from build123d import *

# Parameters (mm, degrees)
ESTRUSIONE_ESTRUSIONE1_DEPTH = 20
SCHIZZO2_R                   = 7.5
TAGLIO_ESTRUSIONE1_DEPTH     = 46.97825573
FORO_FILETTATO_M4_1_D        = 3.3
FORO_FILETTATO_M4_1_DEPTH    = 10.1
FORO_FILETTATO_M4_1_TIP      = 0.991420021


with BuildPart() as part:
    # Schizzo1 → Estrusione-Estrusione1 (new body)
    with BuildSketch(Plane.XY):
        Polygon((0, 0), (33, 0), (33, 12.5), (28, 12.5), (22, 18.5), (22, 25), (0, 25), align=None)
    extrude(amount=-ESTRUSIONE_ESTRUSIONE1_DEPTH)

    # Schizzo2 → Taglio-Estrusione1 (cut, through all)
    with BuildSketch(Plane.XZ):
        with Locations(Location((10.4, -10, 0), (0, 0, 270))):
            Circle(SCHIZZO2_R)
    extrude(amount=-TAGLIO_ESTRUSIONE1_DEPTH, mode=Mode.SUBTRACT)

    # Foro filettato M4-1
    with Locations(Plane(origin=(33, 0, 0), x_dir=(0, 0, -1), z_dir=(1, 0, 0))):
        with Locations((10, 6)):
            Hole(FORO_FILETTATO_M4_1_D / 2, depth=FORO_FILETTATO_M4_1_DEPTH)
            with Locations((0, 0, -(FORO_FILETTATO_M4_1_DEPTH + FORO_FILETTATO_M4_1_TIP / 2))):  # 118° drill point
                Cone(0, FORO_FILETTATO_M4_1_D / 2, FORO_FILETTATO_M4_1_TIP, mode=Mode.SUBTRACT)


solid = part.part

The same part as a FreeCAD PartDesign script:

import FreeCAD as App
import Part
import Sketcher

V = App.Vector
Q = App.Units.Quantity


def add_polygon(sketch, points):
    """Adds a closed chain of lines whose ends are joined by coincident constraints."""
    first, n = sketch.GeometryCount, len(points)
    for a, b in zip(points, points[1:] + points[:1]):
        sketch.addGeometry(Part.LineSegment(App.Vector(*a, 0), App.Vector(*b, 0)), False)
    for i in range(n):
        sketch.addConstraint(Sketcher.Constraint("Coincident", first + i, 2, first + (i + 1) % n, 1))

doc = App.newDocument("Part")
params = doc.addObject("Spreadsheet::Sheet", "Params")
for row, (alias, value) in enumerate([
    ("sketch1_width", "33 mm"),
    ("sketch1_width2", "5 mm"),
    ("sketch1_width3", "22 mm"),
    ("sketch1_height", "25 mm"),
    ("sketch1_height2", "12.5 mm"),
    ("pad1_length", "20 mm"),
    ("sketch2_diameter", "15 mm"),
    ("sketch3_diameter", "3.3 mm"),
    ("hole_diameter", "3.3 mm"),
    ("hole_depth", "10.1 mm"),
], start=1):
    params.set(f"A{row}", alias)
    params.set(f"B{row}", "=" + value)
    params.setAlias(f"B{row}", alias)

body = doc.addObject("PartDesign::Body", "Body")

# Sketch on XY plane
sketch1 = body.newObject("Sketcher::SketchObject", "Sketch")
sketch1.AttachmentSupport = (doc.getObject("XY_Plane"), [""])
sketch1.MapMode = "FlatFace"
add_polygon(sketch1, [(0, 0), (33, 0), (33, 12), (28, 12), (22, 18), (22, 25), (0, 25)])  # lines 0-6
sketch1.addConstraint([
    Sketcher.Constraint("Horizontal", 0),
    Sketcher.Constraint("Vertical", 1),
    Sketcher.Constraint("Horizontal", 2),
    Sketcher.Constraint("Vertical", 4),
    Sketcher.Constraint("Horizontal", 5),
    Sketcher.Constraint("Vertical", 6),
    Sketcher.Constraint("Coincident", 6, 2, -1, 1),
    Sketcher.Constraint("DistanceX", 0, 1, 0, 2, 33.0),
    Sketcher.Constraint("DistanceX", 2, 2, 2, 1, 5.0),
    Sketcher.Constraint("DistanceX", 5, 2, 5, 1, 22.0),
    Sketcher.Constraint("DistanceY", 6, 2, 6, 1, 25.0),
    Sketcher.Constraint("Angle", 3, Q("135 deg")),
    Sketcher.Constraint("DistanceY", 1, 1, 1, 2, 12.5),
])
sketch1.setExpression("Constraints[14]", "Params.sketch1_width")
sketch1.setExpression("Constraints[15]", "Params.sketch1_width2")
sketch1.setExpression("Constraints[16]", "Params.sketch1_width3")
sketch1.setExpression("Constraints[17]", "Params.sketch1_height")
sketch1.setExpression("Constraints[19]", "Params.sketch1_height2")
pad1 = body.newObject("PartDesign::Pad", "Pad")
pad1.Profile = sketch1
pad1.setExpression("Length", "Params.pad1_length")
pad1.Reversed = True

# Sketch on XZ plane
sketch2 = body.newObject("Sketcher::SketchObject", "Sketch001")
sketch2.AttachmentSupport = (doc.getObject("XZ_Plane"), [""])
sketch2.MapMode = "FlatFace"
sketch2.addGeometry(Part.Circle(V(10, -10, 0), V(0, 0, 1), 8), False)
sketch2.addConstraint([
    Sketcher.Constraint("Diameter", 0, 15.0),
    Sketcher.Constraint("DistanceY", 0, 3, -1, 1, 10.0),
    Sketcher.Constraint("DistanceX", -1, 1, 0, 3, 10.4),
])
sketch2.setExpression("Constraints[0]", "Params.sketch2_diameter")
pocket1 = body.newObject("PartDesign::Pocket", "Pocket")
pocket1.Profile = sketch2
pocket1.Type = "ThroughAll"

# Sketch on YZ plane
sketch3 = body.newObject("Sketcher::SketchObject", "Sketch002")
sketch3.AttachmentSupport = (doc.getObject("YZ_Plane"), [""])
sketch3.MapMode = "FlatFace"
sketch3.AttachmentOffset = App.Placement(V(0, 0, 33), App.Rotation())
sketch3.addGeometry(Part.Circle(V(6, -10, 0), V(0, 0, 1), 1.6), False)
sketch3.addConstraint([
    Sketcher.Constraint("Diameter", 0, 3.3),
    Sketcher.Constraint("DistanceX", -1, 1, 0, 3, 6.0),
    Sketcher.Constraint("DistanceY", 0, 3, -1, 1, 10.0),
])
sketch3.setExpression("Constraints[0]", "Params.sketch3_diameter")
doc.recompute()
hole = body.newObject("PartDesign::Hole", "Hole")
hole.Profile = sketch3
hole.ThreadType = "None"
hole.setExpression("Diameter", "Params.hole_diameter")
hole.DepthType = "Dimension"
hole.setExpression("Depth", "Params.hole_depth")
hole.DrillPoint = "Angled"
hole.DrillPointAngle = 118

doc.recompute()
